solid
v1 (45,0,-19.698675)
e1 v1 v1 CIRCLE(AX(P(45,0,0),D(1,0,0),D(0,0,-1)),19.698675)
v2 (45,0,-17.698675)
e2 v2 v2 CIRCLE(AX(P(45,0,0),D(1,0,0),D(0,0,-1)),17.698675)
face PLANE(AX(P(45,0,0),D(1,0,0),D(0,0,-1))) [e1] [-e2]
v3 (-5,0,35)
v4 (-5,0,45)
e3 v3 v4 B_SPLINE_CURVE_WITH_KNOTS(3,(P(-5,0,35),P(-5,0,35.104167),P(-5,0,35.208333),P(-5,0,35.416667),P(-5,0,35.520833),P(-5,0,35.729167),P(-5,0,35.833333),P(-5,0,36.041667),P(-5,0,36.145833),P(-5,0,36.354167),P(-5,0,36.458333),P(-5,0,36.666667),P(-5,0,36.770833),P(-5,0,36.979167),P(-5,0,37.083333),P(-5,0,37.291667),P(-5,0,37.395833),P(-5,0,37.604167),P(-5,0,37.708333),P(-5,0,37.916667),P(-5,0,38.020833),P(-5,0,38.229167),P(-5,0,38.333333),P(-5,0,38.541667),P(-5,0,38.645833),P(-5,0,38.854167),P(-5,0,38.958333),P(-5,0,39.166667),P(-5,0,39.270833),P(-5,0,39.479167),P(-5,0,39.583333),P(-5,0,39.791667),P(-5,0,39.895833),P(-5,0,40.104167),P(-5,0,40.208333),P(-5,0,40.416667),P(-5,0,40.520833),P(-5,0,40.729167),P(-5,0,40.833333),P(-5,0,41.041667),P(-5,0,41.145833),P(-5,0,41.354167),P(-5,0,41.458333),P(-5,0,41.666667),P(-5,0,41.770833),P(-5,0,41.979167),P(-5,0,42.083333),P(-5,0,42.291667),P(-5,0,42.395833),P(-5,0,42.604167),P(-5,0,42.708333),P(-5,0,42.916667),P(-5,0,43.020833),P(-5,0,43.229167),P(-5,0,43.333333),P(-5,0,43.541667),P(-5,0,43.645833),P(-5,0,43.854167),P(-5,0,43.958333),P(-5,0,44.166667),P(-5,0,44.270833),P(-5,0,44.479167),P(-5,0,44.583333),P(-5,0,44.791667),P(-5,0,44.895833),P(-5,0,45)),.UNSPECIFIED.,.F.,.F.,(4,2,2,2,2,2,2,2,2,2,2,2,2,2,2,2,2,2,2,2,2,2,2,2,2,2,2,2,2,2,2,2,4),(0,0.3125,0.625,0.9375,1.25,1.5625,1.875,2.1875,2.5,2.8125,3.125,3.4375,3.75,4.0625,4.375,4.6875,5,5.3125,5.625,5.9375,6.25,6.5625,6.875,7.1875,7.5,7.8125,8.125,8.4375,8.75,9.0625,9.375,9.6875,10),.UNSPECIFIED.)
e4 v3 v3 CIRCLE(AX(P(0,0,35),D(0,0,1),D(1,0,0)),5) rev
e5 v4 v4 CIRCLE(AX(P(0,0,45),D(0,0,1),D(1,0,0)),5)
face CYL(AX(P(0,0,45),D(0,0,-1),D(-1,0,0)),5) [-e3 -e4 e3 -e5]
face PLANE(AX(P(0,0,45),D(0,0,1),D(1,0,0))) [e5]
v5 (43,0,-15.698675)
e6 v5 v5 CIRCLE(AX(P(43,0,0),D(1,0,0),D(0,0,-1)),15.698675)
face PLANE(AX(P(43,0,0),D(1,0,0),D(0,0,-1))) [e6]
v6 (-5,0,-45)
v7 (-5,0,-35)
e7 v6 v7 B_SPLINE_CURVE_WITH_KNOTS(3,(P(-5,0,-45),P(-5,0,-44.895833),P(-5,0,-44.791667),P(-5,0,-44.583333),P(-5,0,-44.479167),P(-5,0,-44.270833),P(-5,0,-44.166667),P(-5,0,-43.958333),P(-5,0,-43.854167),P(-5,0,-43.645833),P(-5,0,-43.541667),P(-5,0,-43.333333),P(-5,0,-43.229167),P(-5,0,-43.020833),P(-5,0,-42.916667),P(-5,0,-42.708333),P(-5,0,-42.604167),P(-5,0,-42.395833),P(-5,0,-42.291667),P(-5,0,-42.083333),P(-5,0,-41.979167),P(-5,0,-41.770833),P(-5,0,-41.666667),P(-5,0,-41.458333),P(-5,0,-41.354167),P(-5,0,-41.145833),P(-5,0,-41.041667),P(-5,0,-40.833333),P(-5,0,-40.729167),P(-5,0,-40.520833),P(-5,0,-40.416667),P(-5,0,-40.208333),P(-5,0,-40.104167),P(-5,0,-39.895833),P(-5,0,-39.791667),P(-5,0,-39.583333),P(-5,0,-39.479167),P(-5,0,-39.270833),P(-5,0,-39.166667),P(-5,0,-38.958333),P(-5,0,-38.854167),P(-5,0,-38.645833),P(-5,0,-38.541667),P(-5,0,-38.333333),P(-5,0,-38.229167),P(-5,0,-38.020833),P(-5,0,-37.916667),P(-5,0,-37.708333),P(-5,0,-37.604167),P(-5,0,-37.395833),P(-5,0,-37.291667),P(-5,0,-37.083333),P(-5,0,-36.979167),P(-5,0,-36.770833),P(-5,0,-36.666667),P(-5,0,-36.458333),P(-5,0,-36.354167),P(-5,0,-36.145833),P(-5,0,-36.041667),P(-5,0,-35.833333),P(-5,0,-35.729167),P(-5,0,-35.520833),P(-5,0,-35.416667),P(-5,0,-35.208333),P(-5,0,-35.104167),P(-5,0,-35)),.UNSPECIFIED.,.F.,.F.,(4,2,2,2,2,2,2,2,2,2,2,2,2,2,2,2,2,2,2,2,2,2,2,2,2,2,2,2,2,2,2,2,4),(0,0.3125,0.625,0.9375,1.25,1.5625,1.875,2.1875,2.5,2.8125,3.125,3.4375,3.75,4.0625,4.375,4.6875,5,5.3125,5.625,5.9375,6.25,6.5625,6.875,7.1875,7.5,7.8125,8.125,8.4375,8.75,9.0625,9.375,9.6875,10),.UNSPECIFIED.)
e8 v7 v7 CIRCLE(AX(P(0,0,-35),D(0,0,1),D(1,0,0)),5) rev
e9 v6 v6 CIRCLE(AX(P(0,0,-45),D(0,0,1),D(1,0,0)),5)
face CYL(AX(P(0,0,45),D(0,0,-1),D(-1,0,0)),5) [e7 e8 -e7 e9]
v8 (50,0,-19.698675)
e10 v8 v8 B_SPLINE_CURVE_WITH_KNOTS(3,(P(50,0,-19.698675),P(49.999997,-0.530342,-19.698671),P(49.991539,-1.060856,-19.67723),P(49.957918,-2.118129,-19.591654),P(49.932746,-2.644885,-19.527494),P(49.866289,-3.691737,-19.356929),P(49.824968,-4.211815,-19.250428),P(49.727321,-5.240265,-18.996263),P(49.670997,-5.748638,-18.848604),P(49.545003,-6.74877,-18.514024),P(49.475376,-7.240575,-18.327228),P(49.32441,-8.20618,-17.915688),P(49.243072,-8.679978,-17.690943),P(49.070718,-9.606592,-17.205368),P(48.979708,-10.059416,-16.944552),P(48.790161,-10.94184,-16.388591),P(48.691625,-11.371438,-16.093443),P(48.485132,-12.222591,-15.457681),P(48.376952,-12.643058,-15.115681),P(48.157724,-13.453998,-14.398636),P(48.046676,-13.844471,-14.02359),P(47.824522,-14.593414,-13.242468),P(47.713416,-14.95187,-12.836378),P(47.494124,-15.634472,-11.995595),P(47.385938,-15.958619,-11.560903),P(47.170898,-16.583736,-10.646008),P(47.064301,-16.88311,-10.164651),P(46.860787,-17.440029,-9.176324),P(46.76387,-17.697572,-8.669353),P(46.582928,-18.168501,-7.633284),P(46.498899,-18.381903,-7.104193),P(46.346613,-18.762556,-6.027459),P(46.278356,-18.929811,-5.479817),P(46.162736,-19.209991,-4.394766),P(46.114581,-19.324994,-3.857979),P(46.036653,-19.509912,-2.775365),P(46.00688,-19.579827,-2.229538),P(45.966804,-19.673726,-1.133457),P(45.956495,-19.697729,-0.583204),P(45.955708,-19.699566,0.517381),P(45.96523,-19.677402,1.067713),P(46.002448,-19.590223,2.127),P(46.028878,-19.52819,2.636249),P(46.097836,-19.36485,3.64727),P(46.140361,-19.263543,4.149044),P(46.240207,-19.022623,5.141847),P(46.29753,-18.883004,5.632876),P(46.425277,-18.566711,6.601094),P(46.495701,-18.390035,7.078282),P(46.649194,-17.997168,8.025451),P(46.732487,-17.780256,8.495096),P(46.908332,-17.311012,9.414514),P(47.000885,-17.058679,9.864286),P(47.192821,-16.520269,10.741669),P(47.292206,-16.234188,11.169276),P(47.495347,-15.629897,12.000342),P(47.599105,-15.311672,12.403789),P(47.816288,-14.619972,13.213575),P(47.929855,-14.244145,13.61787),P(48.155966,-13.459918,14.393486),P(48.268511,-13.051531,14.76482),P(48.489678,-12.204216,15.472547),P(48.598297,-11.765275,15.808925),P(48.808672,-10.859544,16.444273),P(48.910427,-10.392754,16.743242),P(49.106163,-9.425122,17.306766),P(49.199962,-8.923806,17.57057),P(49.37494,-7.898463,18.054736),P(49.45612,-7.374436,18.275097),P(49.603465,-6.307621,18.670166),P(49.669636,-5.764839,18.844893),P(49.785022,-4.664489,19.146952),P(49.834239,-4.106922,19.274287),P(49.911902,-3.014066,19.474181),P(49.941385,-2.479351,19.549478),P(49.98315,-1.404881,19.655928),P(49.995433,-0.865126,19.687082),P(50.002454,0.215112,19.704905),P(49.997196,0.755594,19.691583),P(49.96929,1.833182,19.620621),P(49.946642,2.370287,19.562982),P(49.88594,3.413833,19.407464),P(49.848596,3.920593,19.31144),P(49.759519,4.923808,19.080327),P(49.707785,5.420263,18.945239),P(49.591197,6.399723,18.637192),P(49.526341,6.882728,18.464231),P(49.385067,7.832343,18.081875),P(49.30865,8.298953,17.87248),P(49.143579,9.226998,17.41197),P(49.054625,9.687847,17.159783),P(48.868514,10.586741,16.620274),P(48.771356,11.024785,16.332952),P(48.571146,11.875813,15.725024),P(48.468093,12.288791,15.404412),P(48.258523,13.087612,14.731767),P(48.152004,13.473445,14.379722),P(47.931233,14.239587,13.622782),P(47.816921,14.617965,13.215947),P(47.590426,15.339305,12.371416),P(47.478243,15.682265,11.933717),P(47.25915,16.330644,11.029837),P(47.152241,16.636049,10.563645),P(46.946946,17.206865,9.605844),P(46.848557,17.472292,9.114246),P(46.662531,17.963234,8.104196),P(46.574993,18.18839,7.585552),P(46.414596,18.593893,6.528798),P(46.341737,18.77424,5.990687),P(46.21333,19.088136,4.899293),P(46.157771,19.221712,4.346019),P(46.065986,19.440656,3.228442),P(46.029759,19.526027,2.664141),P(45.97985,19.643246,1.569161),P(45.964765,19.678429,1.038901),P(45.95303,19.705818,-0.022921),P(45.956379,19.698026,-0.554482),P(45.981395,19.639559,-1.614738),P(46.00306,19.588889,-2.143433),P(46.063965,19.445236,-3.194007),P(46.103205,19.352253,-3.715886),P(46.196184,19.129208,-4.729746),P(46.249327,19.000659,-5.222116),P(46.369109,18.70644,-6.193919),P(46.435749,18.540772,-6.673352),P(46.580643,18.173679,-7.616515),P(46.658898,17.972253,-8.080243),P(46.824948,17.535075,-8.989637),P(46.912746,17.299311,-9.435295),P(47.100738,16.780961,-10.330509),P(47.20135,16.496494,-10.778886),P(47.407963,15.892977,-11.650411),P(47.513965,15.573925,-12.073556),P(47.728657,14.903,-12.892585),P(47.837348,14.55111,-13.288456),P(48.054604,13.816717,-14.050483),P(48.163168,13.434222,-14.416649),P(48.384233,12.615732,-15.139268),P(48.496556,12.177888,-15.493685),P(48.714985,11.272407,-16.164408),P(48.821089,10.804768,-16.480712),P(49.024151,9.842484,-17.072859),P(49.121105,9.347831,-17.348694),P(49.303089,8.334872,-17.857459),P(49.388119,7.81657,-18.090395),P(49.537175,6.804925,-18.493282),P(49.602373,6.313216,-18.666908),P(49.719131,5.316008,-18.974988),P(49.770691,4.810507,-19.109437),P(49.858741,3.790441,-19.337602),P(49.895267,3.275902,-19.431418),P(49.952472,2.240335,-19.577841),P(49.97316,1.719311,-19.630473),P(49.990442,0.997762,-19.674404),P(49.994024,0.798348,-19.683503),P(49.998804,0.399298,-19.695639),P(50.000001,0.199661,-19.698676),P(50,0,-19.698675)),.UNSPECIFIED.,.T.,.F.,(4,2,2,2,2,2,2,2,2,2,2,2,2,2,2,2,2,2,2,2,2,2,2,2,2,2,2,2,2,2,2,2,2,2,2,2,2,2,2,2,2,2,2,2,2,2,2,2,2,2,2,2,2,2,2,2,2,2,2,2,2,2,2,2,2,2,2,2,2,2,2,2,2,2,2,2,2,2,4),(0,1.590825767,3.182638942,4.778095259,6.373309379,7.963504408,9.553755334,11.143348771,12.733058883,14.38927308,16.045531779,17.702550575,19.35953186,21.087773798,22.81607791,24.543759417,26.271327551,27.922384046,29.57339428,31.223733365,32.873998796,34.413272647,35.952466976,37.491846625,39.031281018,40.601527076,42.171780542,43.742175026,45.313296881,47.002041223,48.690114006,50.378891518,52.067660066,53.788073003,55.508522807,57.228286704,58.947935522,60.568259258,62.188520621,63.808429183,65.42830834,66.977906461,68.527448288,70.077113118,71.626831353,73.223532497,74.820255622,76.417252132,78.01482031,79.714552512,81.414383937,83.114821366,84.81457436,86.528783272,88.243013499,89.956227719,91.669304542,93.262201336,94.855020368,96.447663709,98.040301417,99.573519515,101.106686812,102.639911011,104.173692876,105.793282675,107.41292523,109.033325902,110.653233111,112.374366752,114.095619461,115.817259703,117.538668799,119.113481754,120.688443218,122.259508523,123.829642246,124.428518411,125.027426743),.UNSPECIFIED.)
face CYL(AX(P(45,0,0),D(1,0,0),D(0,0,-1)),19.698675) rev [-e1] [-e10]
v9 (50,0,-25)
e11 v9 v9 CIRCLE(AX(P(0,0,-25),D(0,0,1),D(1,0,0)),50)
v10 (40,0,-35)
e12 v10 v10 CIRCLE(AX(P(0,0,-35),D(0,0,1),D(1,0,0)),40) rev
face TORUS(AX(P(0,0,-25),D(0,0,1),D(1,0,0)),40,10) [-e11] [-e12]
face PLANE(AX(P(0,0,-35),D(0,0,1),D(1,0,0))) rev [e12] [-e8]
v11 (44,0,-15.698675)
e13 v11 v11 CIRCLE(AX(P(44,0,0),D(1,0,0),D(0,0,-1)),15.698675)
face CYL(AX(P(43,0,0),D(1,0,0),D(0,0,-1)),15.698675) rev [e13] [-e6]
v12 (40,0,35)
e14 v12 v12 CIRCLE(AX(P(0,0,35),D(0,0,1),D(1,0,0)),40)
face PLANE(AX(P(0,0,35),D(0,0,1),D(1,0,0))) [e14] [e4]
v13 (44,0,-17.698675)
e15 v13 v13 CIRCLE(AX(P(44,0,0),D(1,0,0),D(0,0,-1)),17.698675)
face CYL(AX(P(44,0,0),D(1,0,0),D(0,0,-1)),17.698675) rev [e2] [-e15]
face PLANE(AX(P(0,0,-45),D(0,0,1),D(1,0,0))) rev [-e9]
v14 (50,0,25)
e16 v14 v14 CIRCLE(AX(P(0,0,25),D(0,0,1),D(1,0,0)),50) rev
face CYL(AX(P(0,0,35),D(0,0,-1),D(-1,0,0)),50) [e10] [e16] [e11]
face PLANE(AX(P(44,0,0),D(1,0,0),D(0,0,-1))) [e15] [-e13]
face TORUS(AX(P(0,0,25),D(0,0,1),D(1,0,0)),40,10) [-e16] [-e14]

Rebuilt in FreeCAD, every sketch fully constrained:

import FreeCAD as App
import Part
import Sketcher
Q = App.Units.Quantity


def edges_at(feature, points):
    """Names of the edges that pass closest to the given points."""
    edges = feature.Shape.Edges
    near = lambda p: min(range(len(edges)), key=lambda i: edges[i].distToShape(Part.Vertex(*p))[0])
    return sorted({f"Edge{near(p) + 1}" for p in points})

doc = App.newDocument("Part")
body = doc.addObject("PartDesign::Body", "Body")

# Sketch on XY plane
sketch1 = doc.addObject("Sketcher::SketchObject", "Sketch")
body.addObject(sketch1)
sketch1.AttachmentSupport = (doc.XY_Plane, [""])
sketch1.MapMode = "FlatFace"
sketch1.addGeometry(Part.Circle(App.Vector(0, 0, 0), App.Vector(0, 0, 1), 50), False)
sketch1.addConstraint([
    Sketcher.Constraint("Coincident", 0, 3, -1, 1),
    Sketcher.Constraint("Diameter", 0, Q("100 mm")),
])
pad1 = doc.addObject("PartDesign::Pad", "Pad")
body.addObject(pad1)
pad1.Profile = sketch1
pad1.Length = 70
pad1.Midplane = True

# Sketch on XY plane
sketch2 = doc.addObject("Sketcher::SketchObject", "Sketch001")
body.addObject(sketch2)
sketch2.AttachmentSupport = (doc.XY_Plane, [""])
sketch2.MapMode = "FlatFace"
sketch2.addGeometry(Part.Circle(App.Vector(0, 0, 0), App.Vector(0, 0, 1), 5), False)
sketch2.addConstraint([
    Sketcher.Constraint("Coincident", 0, 3, -1, 1),
    Sketcher.Constraint("Diameter", 0, Q("10 mm")),
])
pad2 = doc.addObject("PartDesign::Pad", "Pad001")
body.addObject(pad2)
pad2.Profile = sketch2
pad2.Length = 90
pad2.Midplane = True
doc.recompute()

fillet = doc.addObject("PartDesign::Fillet", "Fillet")
body.addObject(fillet)
fillet.Base = (pad2, edges_at(pad2, [(-50, 0, -35), (-50, 0, 35)]))
fillet.Radius = 10

# Sketch on YZ plane
sketch3 = doc.addObject("Sketcher::SketchObject", "Sketch002")
body.addObject(sketch3)
sketch3.AttachmentSupport = (doc.YZ_Plane, [""])
sketch3.MapMode = "FlatFace"
sketch3.AttachmentOffset = App.Placement(App.Vector(0, 0, 50), App.Rotation())
sketch3.addGeometry(Part.Circle(App.Vector(0, 0, 0), App.Vector(0, 0, 1), 20), False)
sketch3.addConstraint([
    Sketcher.Constraint("Coincident", 0, 3, -1, 1),
    Sketcher.Constraint("Diameter", 0, Q("39.39735 mm")),
])
pocket1 = doc.addObject("PartDesign::Pocket", "Pocket")
body.addObject(pocket1)
pocket1.Profile = sketch3
pocket1.Length = 5

# Sketch on YZ plane
sketch4 = doc.addObject("Sketcher::SketchObject", "Sketch003")
body.addObject(sketch4)
sketch4.AttachmentSupport = (doc.YZ_Plane, [""])
sketch4.MapMode = "FlatFace"
sketch4.AttachmentOffset = App.Placement(App.Vector(0, 0, 45), App.Rotation())
sketch4.addGeometry(Part.Circle(App.Vector(0, 0, 0), App.Vector(0, 0, 1), 18), False)
sketch4.addConstraint([
    Sketcher.Constraint("Coincident", 0, 3, -1, 1),
    Sketcher.Constraint("Diameter", 0, Q("35.39735 mm")),
])
pocket2 = doc.addObject("PartDesign::Pocket", "Pocket001")
body.addObject(pocket2)
pocket2.Profile = sketch4
pocket2.Length = 1

# Sketch on YZ plane
sketch5 = doc.addObject("Sketcher::SketchObject", "Sketch004")
body.addObject(sketch5)
sketch5.AttachmentSupport = (doc.YZ_Plane, [""])
sketch5.MapMode = "FlatFace"
sketch5.AttachmentOffset = App.Placement(App.Vector(0, 0, 44), App.Rotation())
sketch5.addGeometry(Part.Circle(App.Vector(0, 0, 0), App.Vector(0, 0, 1), 16), False)
sketch5.addConstraint([
    Sketcher.Constraint("Coincident", 0, 3, -1, 1),
    Sketcher.Constraint("Diameter", 0, Q("31.39735 mm")),
])
pocket3 = doc.addObject("PartDesign::Pocket", "Pocket002")
body.addObject(pocket3)
pocket3.Profile = sketch5
pocket3.Length = 1

doc.recompute()
